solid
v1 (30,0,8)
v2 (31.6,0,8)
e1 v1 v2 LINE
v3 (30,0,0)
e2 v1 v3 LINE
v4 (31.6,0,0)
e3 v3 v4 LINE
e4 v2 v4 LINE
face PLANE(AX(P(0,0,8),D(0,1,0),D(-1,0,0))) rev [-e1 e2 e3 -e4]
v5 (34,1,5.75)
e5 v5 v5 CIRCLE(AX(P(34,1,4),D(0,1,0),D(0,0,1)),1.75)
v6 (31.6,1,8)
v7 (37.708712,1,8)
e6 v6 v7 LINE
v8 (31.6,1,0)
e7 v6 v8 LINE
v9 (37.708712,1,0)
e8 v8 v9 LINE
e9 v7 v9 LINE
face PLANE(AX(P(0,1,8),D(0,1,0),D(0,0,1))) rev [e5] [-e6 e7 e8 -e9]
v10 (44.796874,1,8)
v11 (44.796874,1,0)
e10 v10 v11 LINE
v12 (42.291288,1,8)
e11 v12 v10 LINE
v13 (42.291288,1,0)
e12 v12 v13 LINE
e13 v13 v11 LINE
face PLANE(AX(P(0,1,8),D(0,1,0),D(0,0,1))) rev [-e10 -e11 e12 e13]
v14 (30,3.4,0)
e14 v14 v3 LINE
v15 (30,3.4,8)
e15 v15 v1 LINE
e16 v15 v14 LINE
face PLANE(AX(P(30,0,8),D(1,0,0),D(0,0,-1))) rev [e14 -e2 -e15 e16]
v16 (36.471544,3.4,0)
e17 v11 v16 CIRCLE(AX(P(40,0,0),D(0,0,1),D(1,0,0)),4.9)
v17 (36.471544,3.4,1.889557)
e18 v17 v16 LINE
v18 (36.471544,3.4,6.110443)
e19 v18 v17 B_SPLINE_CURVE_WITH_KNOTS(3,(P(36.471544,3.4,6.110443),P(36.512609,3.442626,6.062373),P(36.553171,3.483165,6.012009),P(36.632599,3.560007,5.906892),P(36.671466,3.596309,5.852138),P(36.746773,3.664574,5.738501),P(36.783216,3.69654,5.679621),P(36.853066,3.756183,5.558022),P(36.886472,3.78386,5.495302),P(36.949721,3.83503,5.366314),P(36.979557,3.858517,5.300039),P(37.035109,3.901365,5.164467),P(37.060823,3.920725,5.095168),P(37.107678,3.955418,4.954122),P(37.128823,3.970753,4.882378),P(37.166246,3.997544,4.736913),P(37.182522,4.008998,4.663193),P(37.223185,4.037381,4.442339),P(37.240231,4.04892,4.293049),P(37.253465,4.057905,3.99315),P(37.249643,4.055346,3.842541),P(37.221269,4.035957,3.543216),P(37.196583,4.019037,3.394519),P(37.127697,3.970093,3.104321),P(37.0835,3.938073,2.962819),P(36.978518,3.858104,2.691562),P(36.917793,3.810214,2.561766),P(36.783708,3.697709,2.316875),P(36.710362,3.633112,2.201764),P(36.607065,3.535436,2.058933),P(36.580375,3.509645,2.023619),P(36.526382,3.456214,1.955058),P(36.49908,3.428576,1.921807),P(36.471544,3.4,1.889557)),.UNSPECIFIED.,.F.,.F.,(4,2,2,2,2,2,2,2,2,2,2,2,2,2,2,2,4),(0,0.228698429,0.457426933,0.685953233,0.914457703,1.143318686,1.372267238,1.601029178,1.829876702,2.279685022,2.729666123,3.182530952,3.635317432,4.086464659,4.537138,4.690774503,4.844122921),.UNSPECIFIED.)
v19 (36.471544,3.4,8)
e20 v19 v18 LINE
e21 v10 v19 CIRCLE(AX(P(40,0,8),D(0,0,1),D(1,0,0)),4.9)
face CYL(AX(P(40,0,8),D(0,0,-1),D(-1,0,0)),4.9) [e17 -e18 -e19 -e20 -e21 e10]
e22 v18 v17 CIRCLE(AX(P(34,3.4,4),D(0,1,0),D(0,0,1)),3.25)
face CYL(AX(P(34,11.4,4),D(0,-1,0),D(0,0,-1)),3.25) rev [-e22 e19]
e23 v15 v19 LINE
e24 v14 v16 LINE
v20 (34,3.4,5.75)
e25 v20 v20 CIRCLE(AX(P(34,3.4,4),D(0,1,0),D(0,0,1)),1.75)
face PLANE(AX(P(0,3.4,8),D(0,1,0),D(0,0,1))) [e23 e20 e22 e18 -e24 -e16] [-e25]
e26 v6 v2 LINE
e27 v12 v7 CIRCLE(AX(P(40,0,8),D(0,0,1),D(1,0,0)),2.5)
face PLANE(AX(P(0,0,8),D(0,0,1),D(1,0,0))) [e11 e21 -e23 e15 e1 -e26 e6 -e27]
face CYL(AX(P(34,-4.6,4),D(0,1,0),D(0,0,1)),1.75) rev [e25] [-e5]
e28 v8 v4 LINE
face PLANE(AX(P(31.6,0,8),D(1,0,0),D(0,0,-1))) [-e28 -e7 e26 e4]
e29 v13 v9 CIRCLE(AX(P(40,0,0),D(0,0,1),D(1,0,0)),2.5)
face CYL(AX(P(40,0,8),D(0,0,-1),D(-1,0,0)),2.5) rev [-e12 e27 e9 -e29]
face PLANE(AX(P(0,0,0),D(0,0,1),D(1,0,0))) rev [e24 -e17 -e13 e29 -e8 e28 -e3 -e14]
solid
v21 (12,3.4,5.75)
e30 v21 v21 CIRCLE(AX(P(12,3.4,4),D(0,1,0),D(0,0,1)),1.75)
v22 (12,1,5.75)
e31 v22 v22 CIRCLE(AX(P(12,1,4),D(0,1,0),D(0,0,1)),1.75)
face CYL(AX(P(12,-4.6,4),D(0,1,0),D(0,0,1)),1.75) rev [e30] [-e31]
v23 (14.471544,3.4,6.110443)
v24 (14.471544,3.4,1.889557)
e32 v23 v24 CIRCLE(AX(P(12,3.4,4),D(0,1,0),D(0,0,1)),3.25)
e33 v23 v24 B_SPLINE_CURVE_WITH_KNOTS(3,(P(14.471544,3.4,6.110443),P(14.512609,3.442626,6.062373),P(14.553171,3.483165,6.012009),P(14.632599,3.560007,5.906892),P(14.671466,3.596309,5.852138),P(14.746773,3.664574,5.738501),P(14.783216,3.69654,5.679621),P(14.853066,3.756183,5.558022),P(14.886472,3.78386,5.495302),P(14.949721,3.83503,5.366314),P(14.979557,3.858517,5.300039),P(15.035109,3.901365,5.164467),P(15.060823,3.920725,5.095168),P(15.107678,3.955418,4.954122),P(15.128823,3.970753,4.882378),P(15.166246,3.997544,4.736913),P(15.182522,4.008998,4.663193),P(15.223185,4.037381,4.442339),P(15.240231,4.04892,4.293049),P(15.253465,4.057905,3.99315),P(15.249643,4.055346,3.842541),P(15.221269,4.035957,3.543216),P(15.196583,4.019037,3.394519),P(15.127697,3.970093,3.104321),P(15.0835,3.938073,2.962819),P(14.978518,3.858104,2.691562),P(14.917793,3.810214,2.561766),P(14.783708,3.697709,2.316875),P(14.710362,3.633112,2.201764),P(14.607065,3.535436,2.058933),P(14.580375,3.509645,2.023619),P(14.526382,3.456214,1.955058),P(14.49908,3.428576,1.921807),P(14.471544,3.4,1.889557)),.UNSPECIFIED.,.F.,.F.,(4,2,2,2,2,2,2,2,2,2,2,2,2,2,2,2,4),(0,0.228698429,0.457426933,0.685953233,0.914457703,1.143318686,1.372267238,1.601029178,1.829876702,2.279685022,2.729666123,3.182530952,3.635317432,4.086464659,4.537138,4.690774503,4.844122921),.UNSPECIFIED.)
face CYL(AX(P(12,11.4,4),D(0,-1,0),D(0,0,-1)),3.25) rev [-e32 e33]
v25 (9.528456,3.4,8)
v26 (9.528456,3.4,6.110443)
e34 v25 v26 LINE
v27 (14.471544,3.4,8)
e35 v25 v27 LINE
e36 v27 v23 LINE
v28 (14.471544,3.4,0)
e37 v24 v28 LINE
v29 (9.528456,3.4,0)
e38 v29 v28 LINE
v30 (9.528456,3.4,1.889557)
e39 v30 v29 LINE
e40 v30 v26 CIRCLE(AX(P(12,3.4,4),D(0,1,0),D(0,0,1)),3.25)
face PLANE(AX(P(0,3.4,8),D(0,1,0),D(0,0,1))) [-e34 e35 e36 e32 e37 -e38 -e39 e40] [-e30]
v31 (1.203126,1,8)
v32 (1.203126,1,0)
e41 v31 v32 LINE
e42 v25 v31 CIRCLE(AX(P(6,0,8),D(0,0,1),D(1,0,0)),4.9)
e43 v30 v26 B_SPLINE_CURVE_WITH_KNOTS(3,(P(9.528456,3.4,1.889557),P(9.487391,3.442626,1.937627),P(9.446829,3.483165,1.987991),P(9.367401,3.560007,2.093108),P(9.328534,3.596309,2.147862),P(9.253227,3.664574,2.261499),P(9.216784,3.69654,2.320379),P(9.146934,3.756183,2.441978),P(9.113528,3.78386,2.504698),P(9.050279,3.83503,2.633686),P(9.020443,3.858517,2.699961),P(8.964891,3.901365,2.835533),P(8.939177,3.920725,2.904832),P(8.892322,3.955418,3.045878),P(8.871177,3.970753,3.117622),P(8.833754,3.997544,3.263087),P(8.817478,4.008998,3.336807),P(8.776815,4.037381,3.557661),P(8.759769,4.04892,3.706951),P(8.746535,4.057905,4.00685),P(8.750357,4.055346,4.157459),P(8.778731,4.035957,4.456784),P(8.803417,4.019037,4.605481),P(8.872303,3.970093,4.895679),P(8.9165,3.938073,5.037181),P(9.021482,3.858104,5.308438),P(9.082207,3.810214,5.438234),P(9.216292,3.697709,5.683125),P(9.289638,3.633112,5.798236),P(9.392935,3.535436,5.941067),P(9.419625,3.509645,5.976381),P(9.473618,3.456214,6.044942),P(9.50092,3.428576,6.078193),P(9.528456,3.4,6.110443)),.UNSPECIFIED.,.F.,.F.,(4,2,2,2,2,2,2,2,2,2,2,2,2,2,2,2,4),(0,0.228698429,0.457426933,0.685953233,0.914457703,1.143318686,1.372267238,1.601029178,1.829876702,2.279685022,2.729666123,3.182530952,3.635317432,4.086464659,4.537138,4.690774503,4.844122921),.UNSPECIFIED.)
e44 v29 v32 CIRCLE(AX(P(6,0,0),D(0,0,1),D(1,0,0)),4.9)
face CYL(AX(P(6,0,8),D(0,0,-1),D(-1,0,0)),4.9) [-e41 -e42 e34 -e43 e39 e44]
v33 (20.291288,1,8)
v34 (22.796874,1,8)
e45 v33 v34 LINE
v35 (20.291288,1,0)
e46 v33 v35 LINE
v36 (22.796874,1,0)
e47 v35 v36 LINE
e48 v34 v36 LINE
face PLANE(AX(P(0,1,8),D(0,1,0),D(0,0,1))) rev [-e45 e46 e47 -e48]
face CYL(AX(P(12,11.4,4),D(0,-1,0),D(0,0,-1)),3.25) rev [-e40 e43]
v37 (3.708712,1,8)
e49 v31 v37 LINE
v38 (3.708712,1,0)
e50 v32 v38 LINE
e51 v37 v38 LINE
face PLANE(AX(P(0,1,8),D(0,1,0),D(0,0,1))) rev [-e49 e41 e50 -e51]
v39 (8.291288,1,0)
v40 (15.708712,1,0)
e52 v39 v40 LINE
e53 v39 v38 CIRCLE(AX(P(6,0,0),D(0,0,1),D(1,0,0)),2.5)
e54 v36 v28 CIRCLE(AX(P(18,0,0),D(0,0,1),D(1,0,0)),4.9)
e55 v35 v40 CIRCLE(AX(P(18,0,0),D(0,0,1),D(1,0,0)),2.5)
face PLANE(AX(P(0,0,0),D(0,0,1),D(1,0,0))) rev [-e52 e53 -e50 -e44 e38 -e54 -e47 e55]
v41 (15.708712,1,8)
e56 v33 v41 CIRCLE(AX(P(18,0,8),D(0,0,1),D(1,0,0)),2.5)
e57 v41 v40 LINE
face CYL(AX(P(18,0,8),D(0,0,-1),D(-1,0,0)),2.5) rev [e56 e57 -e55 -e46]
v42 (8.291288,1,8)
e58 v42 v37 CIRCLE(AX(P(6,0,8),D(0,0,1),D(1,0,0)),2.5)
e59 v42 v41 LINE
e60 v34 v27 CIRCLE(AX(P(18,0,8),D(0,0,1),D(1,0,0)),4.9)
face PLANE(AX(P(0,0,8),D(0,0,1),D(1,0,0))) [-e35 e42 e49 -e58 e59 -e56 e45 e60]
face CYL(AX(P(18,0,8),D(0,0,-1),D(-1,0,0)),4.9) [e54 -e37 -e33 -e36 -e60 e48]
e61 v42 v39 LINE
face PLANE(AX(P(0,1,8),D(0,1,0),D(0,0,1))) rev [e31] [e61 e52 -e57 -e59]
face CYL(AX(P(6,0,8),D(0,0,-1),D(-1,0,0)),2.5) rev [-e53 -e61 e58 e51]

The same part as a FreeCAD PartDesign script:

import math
import FreeCAD as App
import Part
import Sketcher

V = App.Vector
Q = App.Units.Quantity

doc = App.newDocument("Part")
params = doc.addObject("Spreadsheet::Sheet", "Params")
for row, (alias, value) in enumerate([
    ("sketch1_radius", "2.5 mm"),
    ("sketch1_radius2", "4.9 mm"),
    ("sketch1_height", "1 mm"),
    ("sketch1_width", "1.6 mm"),
    ("sketch1_height2", "3.4 mm"),
    ("pad1_length", "8 mm"),
    ("sketch2_diameter", "3.5 mm"),
    ("pocket1_length", "8 mm"),
    ("sketch3_diameter", "6.5 mm"),
    ("pocket2_length", "8 mm"),
], start=1):
    params.set(f"A{row}", alias)
    params.set(f"B{row}", "=" + value)
    params.setAlias(f"B{row}", alias)

body = doc.addObject("PartDesign::Body", "Body")
body.AllowCompound = True

# Sketch on XY plane
sketch1 = body.newObject("Sketcher::SketchObject", "Sketch")
sketch1.AttachmentSupport = (doc.getObject("XY_Plane"), [""])
sketch1.MapMode = "FlatFace"
sketch1.addGeometry([
    Part.LineSegment(V(8.3, 1, 0), V(15.7, 1, 0)),  # 0
    Part.ArcOfCircle(Part.Circle(V(18, 0, 0), V(0, 0, 1), 2.5), math.radians(24), math.radians(156)),  # 1
    Part.LineSegment(V(20.3, 1, 0), V(22.8, 1, 0)),  # 2
    Part.ArcOfCircle(Part.Circle(V(18, 0, 0), V(0, 0, 1), 4.9), math.radians(12), math.radians(44)),  # 3
    Part.ArcOfCircle(Part.Circle(V(18, 0, 0), V(0, 0, 1), 4.9), math.radians(44), math.radians(136)),  # 4
    Part.LineSegment(V(14.5, 3.4, 0), V(9.5, 3.4, 0)),  # 5
    Part.ArcOfCircle(Part.Circle(V(6, 0, 0), V(0, 0, 1), 4.9), math.radians(44), math.radians(136)),  # 6
    Part.ArcOfCircle(Part.Circle(V(6, 0, 0), V(0, 0, 1), 4.9), math.radians(136), math.radians(168)),  # 7
    Part.LineSegment(V(1.2, 1, 0), V(3.7, 1, 0)),  # 8
    Part.ArcOfCircle(Part.Circle(V(6, 0, 0), V(0, 0, 1), 2.5), math.radians(24), math.radians(156)),  # 9
    Part.LineSegment(V(30, 0, 0), V(31.6, 0, 0)),  # 10
    Part.LineSegment(V(31.6, 0, 0), V(31.6, 1, 0)),  # 11
    Part.LineSegment(V(31.6, 1, 0), V(37.7, 1, 0)),  # 12
    Part.ArcOfCircle(Part.Circle(V(40, 0, 0), V(0, 0, 1), 2.5), math.radians(24), math.radians(156)),  # 13
    Part.LineSegment(V(42.3, 1, 0), V(44.8, 1, 0)),  # 14
    Part.ArcOfCircle(Part.Circle(V(40, 0, 0), V(0, 0, 1), 4.9), math.radians(12), math.radians(44)),  # 15
    Part.ArcOfCircle(Part.Circle(V(40, 0, 0), V(0, 0, 1), 4.9), math.radians(44), math.radians(136)),  # 16
    Part.LineSegment(V(36.5, 3.4, 0), V(30, 3.4, 0)),  # 17
    Part.LineSegment(V(30, 3.4, 0), V(30, 0, 0)),  # 18
], False)
sketch1.addConstraint([
    Sketcher.Constraint("Coincident", 0, 2, 1, 2),
    Sketcher.Constraint("Coincident", 1, 1, 2, 1),
    Sketcher.Constraint("Coincident", 2, 2, 3, 1),
    Sketcher.Constraint("Tangent", 3, 2, 4, 1),
    Sketcher.Constraint("Coincident", 4, 2, 5, 1),
    Sketcher.Constraint("Coincident", 5, 2, 6, 1),
    Sketcher.Constraint("Tangent", 6, 2, 7, 1),
    Sketcher.Constraint("Coincident", 7, 2, 8, 1),
    Sketcher.Constraint("Coincident", 8, 2, 9, 2),
    Sketcher.Constraint("Coincident", 9, 1, 0, 1),
    Sketcher.Constraint("Coincident", 10, 2, 11, 1),
    Sketcher.Constraint("Coincident", 11, 2, 12, 1),
    Sketcher.Constraint("Coincident", 12, 2, 13, 2),
    Sketcher.Constraint("Coincident", 13, 1, 14, 1),
    Sketcher.Constraint("Coincident", 14, 2, 15, 1),
    Sketcher.Constraint("Tangent", 15, 2, 16, 1),
    Sketcher.Constraint("Coincident", 16, 2, 17, 1),
    Sketcher.Constraint("Coincident", 17, 2, 18, 1),
    Sketcher.Constraint("Coincident", 18, 2, 10, 1),
    Sketcher.Constraint("Horizontal", 0),
    Sketcher.Constraint("Horizontal", 2),
    Sketcher.Constraint("Horizontal", 5),
    Sketcher.Constraint("Horizontal", 8),
    Sketcher.Constraint("Horizontal", 10),
    Sketcher.Constraint("Vertical", 11),
    Sketcher.Constraint("Horizontal", 12),
    Sketcher.Constraint("Horizontal", 14),
    Sketcher.Constraint("Horizontal", 17),
    Sketcher.Constraint("Vertical", 18),
    Sketcher.Constraint("Coincident", 3, 3, 1, 3),
    Sketcher.Constraint("Coincident", 9, 3, 6, 3),
    Sketcher.Constraint("Coincident", 15, 3, 13, 3),
    Sketcher.Constraint("Equal", 3, 4),
    Sketcher.Constraint("Equal", 4, 6),
    Sketcher.Constraint("Equal", 6, 7),
    Sketcher.Constraint("Equal", 1, 9),
    Sketcher.Constraint("Equal", 9, 13),
    Sketcher.Constraint("Equal", 7, 15),
    Sketcher.Constraint("Equal", 15, 16),
    Sketcher.Constraint("PointOnObject", 1, 3, -1),
    Sketcher.Constraint("PointOnObject", 6, 3, -1),
    Sketcher.Constraint("PointOnObject", 13, 3, -1),
    Sketcher.Constraint("PointOnObject", 10, 2, -1),
    Sketcher.Constraint("Horizontal", 0, 2, 1, 1),
    Sketcher.Constraint("Horizontal", 3, 2, 4, 2),
    Sketcher.Constraint("Horizontal", 5, 2, 6, 2),
    Sketcher.Constraint("Horizontal", 2, 2, 7, 2),
    Sketcher.Constraint("Horizontal", 9, 1, 11, 2),
    Sketcher.Constraint("Horizontal", 12, 2, 13, 1),
    Sketcher.Constraint("Horizontal", 6, 2, 15, 2),
    Sketcher.Constraint("Horizontal", 15, 2, 16, 2),
    Sketcher.Constraint("Radius", 1, Q("2.5 mm")),
    Sketcher.Constraint("Radius", 3, Q("4.9 mm")),
    Sketcher.Constraint("DistanceY", 11, 1, 11, 2, Q("1 mm")),
    Sketcher.Constraint("DistanceX", 10, 1, 10, 2, Q("1.6 mm")),
    Sketcher.Constraint("DistanceY", 18, 2, 18, 1, Q("3.4 mm")),
    Sketcher.Constraint("DistanceX", -1, 1, 1, 3, Q("18 mm")),
    Sketcher.Constraint("DistanceX", -1, 1, 6, 3, Q("6 mm")),
    Sketcher.Constraint("DistanceX", -1, 1, 13, 3, Q("40 mm")),
    Sketcher.Constraint("DistanceX", -1, 1, 17, 2, Q("30 mm")),
])
sketch1.setExpression("Constraints[51]", "Params.sketch1_radius")
sketch1.setExpression("Constraints[52]", "Params.sketch1_radius2")
sketch1.setExpression("Constraints[53]", "Params.sketch1_height")
sketch1.setExpression("Constraints[54]", "Params.sketch1_width")
sketch1.setExpression("Constraints[55]", "Params.sketch1_height2")
pad1 = body.newObject("PartDesign::Pad", "Pad")
pad1.Profile = sketch1
pad1.setExpression("Length", "Params.pad1_length")

# Sketch on XZ plane
sketch2 = body.newObject("Sketcher::SketchObject", "Sketch001")
sketch2.AttachmentSupport = (doc.getObject("XZ_Plane"), [""])
sketch2.MapMode = "FlatFace"
sketch2.AttachmentOffset = App.Placement(V(0, 0, -3.4), App.Rotation())
sketch2.addGeometry([
    Part.Circle(V(12, 4, 0), V(0, 0, 1), 1.8),
    Part.Circle(V(34, 4, 0), V(0, 0, 1), 1.8),
], False)
sketch2.addConstraint([
    Sketcher.Constraint("Equal", 0, 1),
    Sketcher.Constraint("Horizontal", 0, 3, 1, 3),
    Sketcher.Constraint("Diameter", 0, Q("3.5 mm")),
    Sketcher.Constraint("DistanceX", -1, 1, 0, 3, Q("12 mm")),
    Sketcher.Constraint("DistanceY", -1, 1, 0, 3, Q("4 mm")),
    Sketcher.Constraint("DistanceX", -1, 1, 1, 3, Q("34 mm")),
])
sketch2.setExpression("Constraints[2]", "Params.sketch2_diameter")
pocket1 = body.newObject("PartDesign::Pocket", "Pocket")
pocket1.Profile = sketch2
pocket1.setExpression("Length", "Params.pocket1_length")
pocket1.Reversed = True

# Sketch on XZ plane
sketch3 = body.newObject("Sketcher::SketchObject", "Sketch002")
sketch3.AttachmentSupport = (doc.getObject("XZ_Plane"), [""])
sketch3.MapMode = "FlatFace"
sketch3.AttachmentOffset = App.Placement(V(0, 0, -3.4), App.Rotation())
sketch3.addGeometry([
    Part.Circle(V(12, 4, 0), V(0, 0, 1), 3.2),
    Part.Circle(V(34, 4, 0), V(0, 0, 1), 3.2),
], False)
sketch3.addConstraint([
    Sketcher.Constraint("Equal", 0, 1),
    Sketcher.Constraint("Horizontal", 0, 3, 1, 3),
    Sketcher.Constraint("Diameter", 0, Q("6.5 mm")),
    Sketcher.Constraint("DistanceX", -1, 1, 0, 3, Q("12 mm")),
    Sketcher.Constraint("DistanceY", -1, 1, 0, 3, Q("4 mm")),
    Sketcher.Constraint("DistanceX", -1, 1, 1, 3, Q("34 mm")),
])
sketch3.setExpression("Constraints[2]", "Params.sketch3_diameter")
pocket2 = body.newObject("PartDesign::Pocket", "Pocket001")
pocket2.Profile = sketch3
pocket2.setExpression("Length", "Params.pocket2_length")

doc.recompute()
